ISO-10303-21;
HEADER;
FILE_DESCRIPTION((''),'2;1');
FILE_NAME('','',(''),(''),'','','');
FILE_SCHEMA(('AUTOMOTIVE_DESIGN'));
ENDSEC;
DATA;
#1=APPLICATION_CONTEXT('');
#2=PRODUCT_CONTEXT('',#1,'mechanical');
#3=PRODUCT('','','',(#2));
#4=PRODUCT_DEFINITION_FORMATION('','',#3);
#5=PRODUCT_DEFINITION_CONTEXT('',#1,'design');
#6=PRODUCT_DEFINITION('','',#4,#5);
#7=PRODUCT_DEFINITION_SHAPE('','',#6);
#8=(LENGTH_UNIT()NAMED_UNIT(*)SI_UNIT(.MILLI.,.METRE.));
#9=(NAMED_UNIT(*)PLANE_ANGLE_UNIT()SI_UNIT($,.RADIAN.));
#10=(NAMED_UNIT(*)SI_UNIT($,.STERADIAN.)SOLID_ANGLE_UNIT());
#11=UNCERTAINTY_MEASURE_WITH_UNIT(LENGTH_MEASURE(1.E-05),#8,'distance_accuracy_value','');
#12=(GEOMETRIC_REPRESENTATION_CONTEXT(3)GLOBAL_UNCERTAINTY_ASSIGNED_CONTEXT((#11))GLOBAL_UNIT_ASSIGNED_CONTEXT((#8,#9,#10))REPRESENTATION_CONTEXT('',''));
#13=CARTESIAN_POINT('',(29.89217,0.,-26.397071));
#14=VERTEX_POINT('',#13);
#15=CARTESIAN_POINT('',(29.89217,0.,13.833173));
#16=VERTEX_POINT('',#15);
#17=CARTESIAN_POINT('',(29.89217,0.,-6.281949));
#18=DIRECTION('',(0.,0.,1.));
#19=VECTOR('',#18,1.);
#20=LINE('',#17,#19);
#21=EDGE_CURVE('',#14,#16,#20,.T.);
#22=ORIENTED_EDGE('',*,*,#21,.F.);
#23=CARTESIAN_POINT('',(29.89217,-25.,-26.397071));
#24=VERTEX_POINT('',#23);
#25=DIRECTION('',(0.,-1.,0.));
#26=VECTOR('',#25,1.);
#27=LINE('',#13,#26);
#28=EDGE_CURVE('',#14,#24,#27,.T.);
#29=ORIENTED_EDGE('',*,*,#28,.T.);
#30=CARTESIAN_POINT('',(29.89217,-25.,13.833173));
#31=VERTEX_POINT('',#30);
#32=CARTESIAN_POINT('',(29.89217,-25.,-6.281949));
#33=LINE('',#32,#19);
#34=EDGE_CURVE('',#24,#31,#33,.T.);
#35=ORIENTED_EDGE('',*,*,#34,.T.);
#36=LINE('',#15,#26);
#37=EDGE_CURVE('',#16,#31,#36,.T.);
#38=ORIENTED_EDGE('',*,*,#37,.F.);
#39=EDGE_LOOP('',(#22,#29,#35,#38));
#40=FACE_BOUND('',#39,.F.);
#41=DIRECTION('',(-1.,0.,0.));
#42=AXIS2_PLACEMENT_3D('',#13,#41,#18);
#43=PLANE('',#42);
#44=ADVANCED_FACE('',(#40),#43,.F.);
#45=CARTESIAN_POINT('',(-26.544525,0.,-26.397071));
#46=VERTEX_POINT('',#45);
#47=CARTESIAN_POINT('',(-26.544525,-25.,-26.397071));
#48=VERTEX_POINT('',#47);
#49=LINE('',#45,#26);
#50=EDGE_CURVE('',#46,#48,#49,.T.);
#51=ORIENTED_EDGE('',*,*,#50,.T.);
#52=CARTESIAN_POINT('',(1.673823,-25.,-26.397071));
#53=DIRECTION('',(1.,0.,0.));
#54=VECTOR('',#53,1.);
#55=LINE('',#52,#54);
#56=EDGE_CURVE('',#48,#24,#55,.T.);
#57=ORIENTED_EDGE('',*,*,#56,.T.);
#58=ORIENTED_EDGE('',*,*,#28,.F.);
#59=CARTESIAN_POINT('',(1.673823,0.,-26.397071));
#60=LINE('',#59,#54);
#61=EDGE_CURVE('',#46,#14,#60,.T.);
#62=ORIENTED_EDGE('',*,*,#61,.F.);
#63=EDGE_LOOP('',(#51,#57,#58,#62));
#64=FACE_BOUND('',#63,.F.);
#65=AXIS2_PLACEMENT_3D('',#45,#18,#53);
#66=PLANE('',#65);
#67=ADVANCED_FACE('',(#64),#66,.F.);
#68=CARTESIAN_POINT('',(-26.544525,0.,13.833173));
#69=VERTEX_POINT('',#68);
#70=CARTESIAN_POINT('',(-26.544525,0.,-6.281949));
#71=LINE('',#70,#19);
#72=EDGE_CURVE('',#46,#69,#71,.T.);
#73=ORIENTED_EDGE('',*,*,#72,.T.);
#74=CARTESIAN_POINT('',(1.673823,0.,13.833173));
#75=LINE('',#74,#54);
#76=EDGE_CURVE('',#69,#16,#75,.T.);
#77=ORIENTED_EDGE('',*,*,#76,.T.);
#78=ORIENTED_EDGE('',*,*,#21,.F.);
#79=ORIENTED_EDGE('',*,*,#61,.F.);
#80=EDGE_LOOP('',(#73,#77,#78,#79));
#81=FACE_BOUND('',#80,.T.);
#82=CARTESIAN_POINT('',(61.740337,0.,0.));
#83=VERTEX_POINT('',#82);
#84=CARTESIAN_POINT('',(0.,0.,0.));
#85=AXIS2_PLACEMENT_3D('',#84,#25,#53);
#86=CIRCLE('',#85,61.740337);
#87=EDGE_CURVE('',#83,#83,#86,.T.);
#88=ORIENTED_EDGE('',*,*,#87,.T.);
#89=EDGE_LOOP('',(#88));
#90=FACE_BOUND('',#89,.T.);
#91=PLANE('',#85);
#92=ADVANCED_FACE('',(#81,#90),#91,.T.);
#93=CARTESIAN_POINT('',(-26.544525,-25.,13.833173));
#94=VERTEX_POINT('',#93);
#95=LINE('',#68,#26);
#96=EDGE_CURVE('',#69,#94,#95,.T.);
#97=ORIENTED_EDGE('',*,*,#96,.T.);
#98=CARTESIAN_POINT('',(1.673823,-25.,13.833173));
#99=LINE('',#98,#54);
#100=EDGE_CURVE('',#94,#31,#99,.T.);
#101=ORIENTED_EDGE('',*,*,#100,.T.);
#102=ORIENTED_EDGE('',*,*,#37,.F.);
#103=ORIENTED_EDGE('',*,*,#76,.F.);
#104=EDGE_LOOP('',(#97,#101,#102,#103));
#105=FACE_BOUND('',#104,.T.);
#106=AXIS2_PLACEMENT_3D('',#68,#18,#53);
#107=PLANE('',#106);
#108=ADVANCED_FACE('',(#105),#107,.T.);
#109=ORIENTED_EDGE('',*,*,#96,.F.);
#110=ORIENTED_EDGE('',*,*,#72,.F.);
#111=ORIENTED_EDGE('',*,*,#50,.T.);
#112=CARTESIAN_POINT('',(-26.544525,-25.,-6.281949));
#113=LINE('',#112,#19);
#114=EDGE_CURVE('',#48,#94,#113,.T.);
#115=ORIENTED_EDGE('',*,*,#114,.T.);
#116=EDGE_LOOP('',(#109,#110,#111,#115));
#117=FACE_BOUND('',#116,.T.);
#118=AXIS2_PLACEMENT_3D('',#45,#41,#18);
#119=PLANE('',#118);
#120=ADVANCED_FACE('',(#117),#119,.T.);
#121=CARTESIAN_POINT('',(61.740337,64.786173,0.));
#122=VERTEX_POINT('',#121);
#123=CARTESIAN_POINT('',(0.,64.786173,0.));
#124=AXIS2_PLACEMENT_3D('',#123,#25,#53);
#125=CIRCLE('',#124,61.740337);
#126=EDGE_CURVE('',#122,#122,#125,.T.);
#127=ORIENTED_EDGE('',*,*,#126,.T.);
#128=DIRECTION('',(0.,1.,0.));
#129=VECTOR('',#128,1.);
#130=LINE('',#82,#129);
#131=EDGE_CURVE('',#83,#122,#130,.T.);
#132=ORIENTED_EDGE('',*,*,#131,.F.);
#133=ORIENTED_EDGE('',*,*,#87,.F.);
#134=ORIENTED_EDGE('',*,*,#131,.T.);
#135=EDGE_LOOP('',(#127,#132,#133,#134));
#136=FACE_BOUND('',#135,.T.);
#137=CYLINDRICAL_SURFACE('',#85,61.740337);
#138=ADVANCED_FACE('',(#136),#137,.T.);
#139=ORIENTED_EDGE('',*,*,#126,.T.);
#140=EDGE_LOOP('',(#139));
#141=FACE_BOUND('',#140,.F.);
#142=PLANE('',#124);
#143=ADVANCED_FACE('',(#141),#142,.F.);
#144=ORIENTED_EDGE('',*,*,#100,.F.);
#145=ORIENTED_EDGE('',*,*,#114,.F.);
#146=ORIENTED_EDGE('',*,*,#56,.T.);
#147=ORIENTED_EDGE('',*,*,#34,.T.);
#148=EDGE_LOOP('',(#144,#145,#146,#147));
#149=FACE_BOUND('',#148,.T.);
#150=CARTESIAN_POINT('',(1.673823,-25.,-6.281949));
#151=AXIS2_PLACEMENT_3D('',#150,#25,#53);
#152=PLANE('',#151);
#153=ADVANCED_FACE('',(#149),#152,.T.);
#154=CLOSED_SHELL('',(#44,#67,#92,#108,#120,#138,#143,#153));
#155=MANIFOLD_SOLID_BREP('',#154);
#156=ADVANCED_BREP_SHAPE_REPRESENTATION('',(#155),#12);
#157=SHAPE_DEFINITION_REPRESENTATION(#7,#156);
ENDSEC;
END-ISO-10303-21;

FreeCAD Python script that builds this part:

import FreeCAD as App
import Part
import Sketcher
Q = App.Units.Quantity

doc = App.newDocument("Part")
body = doc.addObject("PartDesign::Body", "Body")

# Sketch on XZ plane
sketch1 = body.newObject("Sketcher::SketchObject", "Sketch")
sketch1.AttachmentSupport = (doc.getObject("XZ_Plane"), [""])
sketch1.MapMode = "FlatFace"
sketch1.addGeometry(Part.LineSegment(App.Vector(-26.544525, 13.833173, 0), App.Vector(-26.544525, -26.397071, 0)), False)
sketch1.addGeometry(Part.LineSegment(App.Vector(-26.544525, -26.397071, 0), App.Vector(29.89217, -26.397071, 0)), False)
sketch1.addGeometry(Part.LineSegment(App.Vector(29.89217, -26.397071, 0), App.Vector(29.89217, 13.833173, 0)), False)
sketch1.addGeometry(Part.LineSegment(App.Vector(29.89217, 13.833173, 0), App.Vector(-26.544525, 13.833173, 0)), False)
sketch1.addConstraint(Sketcher.Constraint("Coincident", 0, 2, 1, 1))
sketch1.addConstraint(Sketcher.Constraint("Coincident", 1, 2, 2, 1))
sketch1.addConstraint(Sketcher.Constraint("Coincident", 2, 2, 3, 1))
sketch1.addConstraint(Sketcher.Constraint("Coincident", 3, 2, 0, 1))
sketch1.addConstraint(Sketcher.Constraint("Vertical", 0))
sketch1.addConstraint(Sketcher.Constraint("Horizontal", 1))
sketch1.addConstraint(Sketcher.Constraint("Vertical", 2))
sketch1.addConstraint(Sketcher.Constraint("Horizontal", 3))
sketch1.addConstraint(Sketcher.Constraint("DistanceX", 1, 1, 1, 2, Q("56.436695 mm")))
sketch1.addConstraint(Sketcher.Constraint("DistanceY", 0, 2, 0, 1, Q("40.230245 mm")))
sketch1.addConstraint(Sketcher.Constraint("DistanceY", 0, 2, -1, 1, Q("26.397071 mm")))
sketch1.addConstraint(Sketcher.Constraint("DistanceX", -1, 1, 1, 2, Q("29.89217 mm")))
pad1 = body.newObject("PartDesign::Pad", "Pad")
pad1.Profile = sketch1
pad1.Length = 25

# Sketch on XZ plane
sketch2 = body.newObject("Sketcher::SketchObject", "Sketch001")
sketch2.AttachmentSupport = (doc.getObject("XZ_Plane"), [""])
sketch2.MapMode = "FlatFace"
sketch2.addGeometry(Part.Circle(App.Vector(0, 0, 0), App.Vector(0, 0, 1), 61.740337), False)
sketch2.addConstraint(Sketcher.Constraint("Coincident", 0, 3, -1, 1))
sketch2.addConstraint(Sketcher.Constraint("Diameter", 0, Q("123.480674 mm")))
pad2 = body.newObject("PartDesign::Pad", "Pad001")
pad2.Profile = sketch2
pad2.Length = 64.786173
pad2.Reversed = True

doc.recompute()
